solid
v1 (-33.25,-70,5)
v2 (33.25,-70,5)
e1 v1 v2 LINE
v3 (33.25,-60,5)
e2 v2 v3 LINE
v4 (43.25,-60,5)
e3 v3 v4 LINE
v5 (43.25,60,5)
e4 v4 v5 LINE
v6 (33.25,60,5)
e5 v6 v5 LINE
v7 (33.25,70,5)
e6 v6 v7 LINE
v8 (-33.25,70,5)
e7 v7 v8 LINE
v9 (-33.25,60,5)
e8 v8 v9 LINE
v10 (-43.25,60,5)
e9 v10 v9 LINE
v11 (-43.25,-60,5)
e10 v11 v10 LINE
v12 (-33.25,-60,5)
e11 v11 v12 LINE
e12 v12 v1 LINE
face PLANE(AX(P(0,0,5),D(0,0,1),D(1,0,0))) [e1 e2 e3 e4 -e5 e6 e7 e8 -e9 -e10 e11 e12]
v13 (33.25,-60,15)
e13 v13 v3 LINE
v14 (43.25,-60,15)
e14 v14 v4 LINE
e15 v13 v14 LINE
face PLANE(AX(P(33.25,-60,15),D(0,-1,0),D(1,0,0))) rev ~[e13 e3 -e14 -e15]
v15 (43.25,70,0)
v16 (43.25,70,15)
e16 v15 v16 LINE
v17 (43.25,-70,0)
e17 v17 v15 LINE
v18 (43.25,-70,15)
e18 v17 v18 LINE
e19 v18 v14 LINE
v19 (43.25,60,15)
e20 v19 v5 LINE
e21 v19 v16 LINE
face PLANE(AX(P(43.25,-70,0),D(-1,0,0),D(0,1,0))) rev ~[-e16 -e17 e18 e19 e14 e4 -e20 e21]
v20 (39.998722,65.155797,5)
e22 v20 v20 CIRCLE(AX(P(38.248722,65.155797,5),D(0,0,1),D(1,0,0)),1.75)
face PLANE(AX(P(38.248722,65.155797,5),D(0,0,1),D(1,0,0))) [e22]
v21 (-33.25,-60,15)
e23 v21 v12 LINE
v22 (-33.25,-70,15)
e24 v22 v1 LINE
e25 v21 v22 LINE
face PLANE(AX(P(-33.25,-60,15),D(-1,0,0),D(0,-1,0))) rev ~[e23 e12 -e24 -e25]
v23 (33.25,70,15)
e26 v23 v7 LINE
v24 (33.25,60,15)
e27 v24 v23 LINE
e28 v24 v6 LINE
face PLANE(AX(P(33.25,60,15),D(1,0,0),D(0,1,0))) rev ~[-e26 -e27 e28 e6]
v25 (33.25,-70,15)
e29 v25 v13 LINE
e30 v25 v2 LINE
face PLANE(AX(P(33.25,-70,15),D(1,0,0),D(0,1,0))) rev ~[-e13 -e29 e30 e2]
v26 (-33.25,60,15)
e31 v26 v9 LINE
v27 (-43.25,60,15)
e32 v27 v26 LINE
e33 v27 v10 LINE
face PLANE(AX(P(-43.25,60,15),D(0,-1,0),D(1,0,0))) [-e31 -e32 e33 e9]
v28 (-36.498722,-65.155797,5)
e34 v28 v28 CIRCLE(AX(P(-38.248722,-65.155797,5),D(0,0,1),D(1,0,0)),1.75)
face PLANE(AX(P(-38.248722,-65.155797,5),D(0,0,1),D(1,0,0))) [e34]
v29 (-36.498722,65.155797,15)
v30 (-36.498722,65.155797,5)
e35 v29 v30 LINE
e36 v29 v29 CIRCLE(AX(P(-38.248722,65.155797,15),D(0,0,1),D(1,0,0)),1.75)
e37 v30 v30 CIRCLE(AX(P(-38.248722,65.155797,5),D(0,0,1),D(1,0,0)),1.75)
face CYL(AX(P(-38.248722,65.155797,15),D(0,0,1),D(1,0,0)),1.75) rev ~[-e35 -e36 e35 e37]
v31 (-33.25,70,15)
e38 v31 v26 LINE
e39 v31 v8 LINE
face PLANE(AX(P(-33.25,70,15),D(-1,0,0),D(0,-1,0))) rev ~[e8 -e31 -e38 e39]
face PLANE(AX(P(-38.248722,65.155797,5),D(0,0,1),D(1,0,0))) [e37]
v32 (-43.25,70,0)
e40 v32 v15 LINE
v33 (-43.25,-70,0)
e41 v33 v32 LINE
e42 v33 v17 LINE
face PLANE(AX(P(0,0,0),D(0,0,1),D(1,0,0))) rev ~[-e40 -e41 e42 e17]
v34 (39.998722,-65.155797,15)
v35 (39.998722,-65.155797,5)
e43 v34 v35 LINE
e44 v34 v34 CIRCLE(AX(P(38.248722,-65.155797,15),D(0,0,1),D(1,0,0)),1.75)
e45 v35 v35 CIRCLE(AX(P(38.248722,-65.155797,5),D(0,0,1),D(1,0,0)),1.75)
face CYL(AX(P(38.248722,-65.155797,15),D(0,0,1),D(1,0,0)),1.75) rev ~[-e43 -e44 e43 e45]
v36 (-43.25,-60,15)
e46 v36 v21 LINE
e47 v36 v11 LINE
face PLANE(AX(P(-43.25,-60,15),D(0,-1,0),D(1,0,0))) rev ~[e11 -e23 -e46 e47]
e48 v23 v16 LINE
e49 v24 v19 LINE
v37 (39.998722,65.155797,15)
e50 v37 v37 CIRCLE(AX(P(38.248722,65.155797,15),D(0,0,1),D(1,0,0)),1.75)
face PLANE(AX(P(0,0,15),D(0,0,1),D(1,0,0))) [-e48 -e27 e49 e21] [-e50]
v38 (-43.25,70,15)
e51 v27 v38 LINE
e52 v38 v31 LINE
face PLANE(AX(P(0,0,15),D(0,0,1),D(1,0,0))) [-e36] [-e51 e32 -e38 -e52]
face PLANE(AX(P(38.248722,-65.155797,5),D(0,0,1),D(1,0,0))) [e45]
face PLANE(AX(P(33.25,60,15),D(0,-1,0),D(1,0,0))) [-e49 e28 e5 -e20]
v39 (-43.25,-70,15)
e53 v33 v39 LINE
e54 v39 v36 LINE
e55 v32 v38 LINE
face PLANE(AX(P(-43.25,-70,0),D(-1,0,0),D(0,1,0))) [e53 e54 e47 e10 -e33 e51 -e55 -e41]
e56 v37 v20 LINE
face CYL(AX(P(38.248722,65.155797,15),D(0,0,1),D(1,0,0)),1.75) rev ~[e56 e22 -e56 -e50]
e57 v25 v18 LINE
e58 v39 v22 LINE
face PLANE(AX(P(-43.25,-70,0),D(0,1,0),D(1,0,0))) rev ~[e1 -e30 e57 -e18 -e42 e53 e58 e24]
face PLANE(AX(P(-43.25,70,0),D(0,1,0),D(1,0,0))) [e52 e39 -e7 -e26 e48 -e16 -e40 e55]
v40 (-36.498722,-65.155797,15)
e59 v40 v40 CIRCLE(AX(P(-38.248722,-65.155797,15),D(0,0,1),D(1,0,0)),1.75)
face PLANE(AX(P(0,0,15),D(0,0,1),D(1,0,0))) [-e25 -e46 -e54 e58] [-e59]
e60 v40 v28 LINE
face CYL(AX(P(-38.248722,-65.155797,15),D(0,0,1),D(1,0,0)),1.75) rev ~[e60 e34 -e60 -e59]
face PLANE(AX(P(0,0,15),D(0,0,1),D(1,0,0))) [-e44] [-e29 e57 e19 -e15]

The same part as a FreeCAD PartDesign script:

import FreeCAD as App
import Part
import Sketcher

V = App.Vector


def add_polygon(sketch, points):
    """Adds a closed chain of lines whose ends are joined by coincident constraints."""
    first, n = sketch.GeometryCount, len(points)
    for a, b in zip(points, points[1:] + points[:1]):
        sketch.addGeometry(Part.LineSegment(App.Vector(*a, 0), App.Vector(*b, 0)), False)
    for i in range(n):
        sketch.addConstraint(Sketcher.Constraint("Coincident", first + i, 2, first + (i + 1) % n, 1))

doc = App.newDocument("Part")
params = doc.addObject("Spreadsheet::Sheet", "Params")
for row, (alias, value) in enumerate([
    ("sketch1_height", "140 mm"),
    ("sketch1_width", "86.5 mm"),
    ("pad1_length", "15 mm"),
    ("sketch2_diameter", "3.5 mm"),
    ("sketch2_width", "10 mm"),
    ("sketch2_height", "120 mm"),
    ("sketch2_width2", "66.5 mm"),
    ("pocket1_length", "10 mm"),
], start=1):
    params.set(f"A{row}", alias)
    params.set(f"B{row}", "=" + value)
    params.setAlias(f"B{row}", alias)

body = doc.addObject("PartDesign::Body", "Body")

# Sketch on XY plane
sketch1 = body.newObject("Sketcher::SketchObject", "Sketch")
sketch1.AttachmentSupport = (doc.getObject("XY_Plane"), [""])
sketch1.MapMode = "FlatFace"
add_polygon(sketch1, [(-43, 70), (-43, -70), (43, -70), (43, 70)])  # lines 0-3
sketch1.addConstraint(Sketcher.Constraint("Vertical", 0))
sketch1.addConstraint(Sketcher.Constraint("Horizontal", 1))
sketch1.addConstraint(Sketcher.Constraint("Vertical", 2))
sketch1.addConstraint(Sketcher.Constraint("Horizontal", 3))
sketch1.addConstraint(Sketcher.Constraint("Symmetric", 0, 2, 2, 2, -1, 1))
sketch1.addConstraint(Sketcher.Constraint("DistanceY", 0, 2, 0, 1, 140.0))
sketch1.addConstraint(Sketcher.Constraint("DistanceX", 1, 1, 1, 2, 86.5))
sketch1.setExpression("Constraints[9]", "Params.sketch1_height")
sketch1.setExpression("Constraints[10]", "Params.sketch1_width")
pad1 = body.newObject("PartDesign::Pad", "Pad")
pad1.Profile = sketch1
pad1.setExpression("Length", "Params.pad1_length")

# Sketch on XY plane
sketch2 = body.newObject("Sketcher::SketchObject", "Sketch001")
sketch2.AttachmentSupport = (doc.getObject("XY_Plane"), [""])
sketch2.MapMode = "FlatFace"
sketch2.AttachmentOffset = App.Placement(V(0, 0, 15), App.Rotation())
add_polygon(sketch2, [(-33.2, -70), (33.2, -70), (33.2, -60), (43.2, -60), (43.2, 60), (33.2, 60), (33.2, 70), (-33.2, 70), (-33.2, 60), (-43.2, 60), (-43.2, -60), (-33.2, -60)])  # lines 0-11
sketch2.addGeometry(Part.Circle(V(-38.2, 65.2, 0), V(0, 0, 1), 1.8), False)  # 12
sketch2.addGeometry(Part.Circle(V(38.2, 65.2, 0), V(0, 0, 1), 1.8), False)  # 13
sketch2.addGeometry(Part.Circle(V(-38.2, -65.2, 0), V(0, 0, 1), 1.8), False)  # 14
sketch2.addGeometry(Part.Circle(V(38.2, -65.2, 0), V(0, 0, 1), 1.8), False)  # 15
sketch2.addConstraint(Sketcher.Constraint("Horizontal", 0))
sketch2.addConstraint(Sketcher.Constraint("Vertical", 1))
sketch2.addConstraint(Sketcher.Constraint("Horizontal", 2))
sketch2.addConstraint(Sketcher.Constraint("Vertical", 3))
sketch2.addConstraint(Sketcher.Constraint("Horizontal", 4))
sketch2.addConstraint(Sketcher.Constraint("Vertical", 5))
sketch2.addConstraint(Sketcher.Constraint("Horizontal", 6))
sketch2.addConstraint(Sketcher.Constraint("Vertical", 7))
sketch2.addConstraint(Sketcher.Constraint("Horizontal", 8))
sketch2.addConstraint(Sketcher.Constraint("Vertical", 9))
sketch2.addConstraint(Sketcher.Constraint("Horizontal", 10))
sketch2.addConstraint(Sketcher.Constraint("Vertical", 11))
sketch2.addConstraint(Sketcher.Constraint("Equal", 12, 13))
sketch2.addConstraint(Sketcher.Constraint("Equal", 13, 14))
sketch2.addConstraint(Sketcher.Constraint("Equal", 14, 15))
sketch2.addConstraint(Sketcher.Constraint("Symmetric", 13, 3, 14, 3, -1, 1))
sketch2.addConstraint(Sketcher.Constraint("Symmetric", 12, 3, 15, 3, -1, 1))
sketch2.addConstraint(Sketcher.Constraint("Symmetric", 0, 2, 6, 2, -1, 1))
sketch2.addConstraint(Sketcher.Constraint("Symmetric", 2, 2, 8, 2, -1, 1))
sketch2.addConstraint(Sketcher.Constraint("Symmetric", 4, 2, 10, 2, -1, 1))
sketch2.addConstraint(Sketcher.Constraint("Symmetric", 12, 3, 13, 3, -2))
sketch2.addConstraint(Sketcher.Constraint("Symmetric", 4, 2, 7, 2, -2))
sketch2.addConstraint(Sketcher.Constraint("Equal", 10, 1))
sketch2.addConstraint(Sketcher.Constraint("Diameter", 12, 3.5))
sketch2.addConstraint(Sketcher.Constraint("DistanceX", 2, 1, 2, 2, 10.0))
sketch2.addConstraint(Sketcher.Constraint("DistanceY", 3, 1, 3, 2, 120.0))
sketch2.addConstraint(Sketcher.Constraint("DistanceX", 0, 1, 0, 2, 66.5))
sketch2.addConstraint(Sketcher.Constraint("DistanceX", 14, 3, 0, 2, 71.498722))
sketch2.addConstraint(Sketcher.Constraint("DistanceY", -1, 1, 12, 3, 65.155797))
sketch2.setExpression("Constraints[35]", "Params.sketch2_diameter")
sketch2.setExpression("Constraints[36]", "Params.sketch2_width")
sketch2.setExpression("Constraints[37]", "Params.sketch2_height")
sketch2.setExpression("Constraints[38]", "Params.sketch2_width2")
pocket1 = body.newObject("PartDesign::Pocket", "Pocket")
pocket1.Profile = sketch2
pocket1.setExpression("Length", "Params.pocket1_length")

doc.recompute()
